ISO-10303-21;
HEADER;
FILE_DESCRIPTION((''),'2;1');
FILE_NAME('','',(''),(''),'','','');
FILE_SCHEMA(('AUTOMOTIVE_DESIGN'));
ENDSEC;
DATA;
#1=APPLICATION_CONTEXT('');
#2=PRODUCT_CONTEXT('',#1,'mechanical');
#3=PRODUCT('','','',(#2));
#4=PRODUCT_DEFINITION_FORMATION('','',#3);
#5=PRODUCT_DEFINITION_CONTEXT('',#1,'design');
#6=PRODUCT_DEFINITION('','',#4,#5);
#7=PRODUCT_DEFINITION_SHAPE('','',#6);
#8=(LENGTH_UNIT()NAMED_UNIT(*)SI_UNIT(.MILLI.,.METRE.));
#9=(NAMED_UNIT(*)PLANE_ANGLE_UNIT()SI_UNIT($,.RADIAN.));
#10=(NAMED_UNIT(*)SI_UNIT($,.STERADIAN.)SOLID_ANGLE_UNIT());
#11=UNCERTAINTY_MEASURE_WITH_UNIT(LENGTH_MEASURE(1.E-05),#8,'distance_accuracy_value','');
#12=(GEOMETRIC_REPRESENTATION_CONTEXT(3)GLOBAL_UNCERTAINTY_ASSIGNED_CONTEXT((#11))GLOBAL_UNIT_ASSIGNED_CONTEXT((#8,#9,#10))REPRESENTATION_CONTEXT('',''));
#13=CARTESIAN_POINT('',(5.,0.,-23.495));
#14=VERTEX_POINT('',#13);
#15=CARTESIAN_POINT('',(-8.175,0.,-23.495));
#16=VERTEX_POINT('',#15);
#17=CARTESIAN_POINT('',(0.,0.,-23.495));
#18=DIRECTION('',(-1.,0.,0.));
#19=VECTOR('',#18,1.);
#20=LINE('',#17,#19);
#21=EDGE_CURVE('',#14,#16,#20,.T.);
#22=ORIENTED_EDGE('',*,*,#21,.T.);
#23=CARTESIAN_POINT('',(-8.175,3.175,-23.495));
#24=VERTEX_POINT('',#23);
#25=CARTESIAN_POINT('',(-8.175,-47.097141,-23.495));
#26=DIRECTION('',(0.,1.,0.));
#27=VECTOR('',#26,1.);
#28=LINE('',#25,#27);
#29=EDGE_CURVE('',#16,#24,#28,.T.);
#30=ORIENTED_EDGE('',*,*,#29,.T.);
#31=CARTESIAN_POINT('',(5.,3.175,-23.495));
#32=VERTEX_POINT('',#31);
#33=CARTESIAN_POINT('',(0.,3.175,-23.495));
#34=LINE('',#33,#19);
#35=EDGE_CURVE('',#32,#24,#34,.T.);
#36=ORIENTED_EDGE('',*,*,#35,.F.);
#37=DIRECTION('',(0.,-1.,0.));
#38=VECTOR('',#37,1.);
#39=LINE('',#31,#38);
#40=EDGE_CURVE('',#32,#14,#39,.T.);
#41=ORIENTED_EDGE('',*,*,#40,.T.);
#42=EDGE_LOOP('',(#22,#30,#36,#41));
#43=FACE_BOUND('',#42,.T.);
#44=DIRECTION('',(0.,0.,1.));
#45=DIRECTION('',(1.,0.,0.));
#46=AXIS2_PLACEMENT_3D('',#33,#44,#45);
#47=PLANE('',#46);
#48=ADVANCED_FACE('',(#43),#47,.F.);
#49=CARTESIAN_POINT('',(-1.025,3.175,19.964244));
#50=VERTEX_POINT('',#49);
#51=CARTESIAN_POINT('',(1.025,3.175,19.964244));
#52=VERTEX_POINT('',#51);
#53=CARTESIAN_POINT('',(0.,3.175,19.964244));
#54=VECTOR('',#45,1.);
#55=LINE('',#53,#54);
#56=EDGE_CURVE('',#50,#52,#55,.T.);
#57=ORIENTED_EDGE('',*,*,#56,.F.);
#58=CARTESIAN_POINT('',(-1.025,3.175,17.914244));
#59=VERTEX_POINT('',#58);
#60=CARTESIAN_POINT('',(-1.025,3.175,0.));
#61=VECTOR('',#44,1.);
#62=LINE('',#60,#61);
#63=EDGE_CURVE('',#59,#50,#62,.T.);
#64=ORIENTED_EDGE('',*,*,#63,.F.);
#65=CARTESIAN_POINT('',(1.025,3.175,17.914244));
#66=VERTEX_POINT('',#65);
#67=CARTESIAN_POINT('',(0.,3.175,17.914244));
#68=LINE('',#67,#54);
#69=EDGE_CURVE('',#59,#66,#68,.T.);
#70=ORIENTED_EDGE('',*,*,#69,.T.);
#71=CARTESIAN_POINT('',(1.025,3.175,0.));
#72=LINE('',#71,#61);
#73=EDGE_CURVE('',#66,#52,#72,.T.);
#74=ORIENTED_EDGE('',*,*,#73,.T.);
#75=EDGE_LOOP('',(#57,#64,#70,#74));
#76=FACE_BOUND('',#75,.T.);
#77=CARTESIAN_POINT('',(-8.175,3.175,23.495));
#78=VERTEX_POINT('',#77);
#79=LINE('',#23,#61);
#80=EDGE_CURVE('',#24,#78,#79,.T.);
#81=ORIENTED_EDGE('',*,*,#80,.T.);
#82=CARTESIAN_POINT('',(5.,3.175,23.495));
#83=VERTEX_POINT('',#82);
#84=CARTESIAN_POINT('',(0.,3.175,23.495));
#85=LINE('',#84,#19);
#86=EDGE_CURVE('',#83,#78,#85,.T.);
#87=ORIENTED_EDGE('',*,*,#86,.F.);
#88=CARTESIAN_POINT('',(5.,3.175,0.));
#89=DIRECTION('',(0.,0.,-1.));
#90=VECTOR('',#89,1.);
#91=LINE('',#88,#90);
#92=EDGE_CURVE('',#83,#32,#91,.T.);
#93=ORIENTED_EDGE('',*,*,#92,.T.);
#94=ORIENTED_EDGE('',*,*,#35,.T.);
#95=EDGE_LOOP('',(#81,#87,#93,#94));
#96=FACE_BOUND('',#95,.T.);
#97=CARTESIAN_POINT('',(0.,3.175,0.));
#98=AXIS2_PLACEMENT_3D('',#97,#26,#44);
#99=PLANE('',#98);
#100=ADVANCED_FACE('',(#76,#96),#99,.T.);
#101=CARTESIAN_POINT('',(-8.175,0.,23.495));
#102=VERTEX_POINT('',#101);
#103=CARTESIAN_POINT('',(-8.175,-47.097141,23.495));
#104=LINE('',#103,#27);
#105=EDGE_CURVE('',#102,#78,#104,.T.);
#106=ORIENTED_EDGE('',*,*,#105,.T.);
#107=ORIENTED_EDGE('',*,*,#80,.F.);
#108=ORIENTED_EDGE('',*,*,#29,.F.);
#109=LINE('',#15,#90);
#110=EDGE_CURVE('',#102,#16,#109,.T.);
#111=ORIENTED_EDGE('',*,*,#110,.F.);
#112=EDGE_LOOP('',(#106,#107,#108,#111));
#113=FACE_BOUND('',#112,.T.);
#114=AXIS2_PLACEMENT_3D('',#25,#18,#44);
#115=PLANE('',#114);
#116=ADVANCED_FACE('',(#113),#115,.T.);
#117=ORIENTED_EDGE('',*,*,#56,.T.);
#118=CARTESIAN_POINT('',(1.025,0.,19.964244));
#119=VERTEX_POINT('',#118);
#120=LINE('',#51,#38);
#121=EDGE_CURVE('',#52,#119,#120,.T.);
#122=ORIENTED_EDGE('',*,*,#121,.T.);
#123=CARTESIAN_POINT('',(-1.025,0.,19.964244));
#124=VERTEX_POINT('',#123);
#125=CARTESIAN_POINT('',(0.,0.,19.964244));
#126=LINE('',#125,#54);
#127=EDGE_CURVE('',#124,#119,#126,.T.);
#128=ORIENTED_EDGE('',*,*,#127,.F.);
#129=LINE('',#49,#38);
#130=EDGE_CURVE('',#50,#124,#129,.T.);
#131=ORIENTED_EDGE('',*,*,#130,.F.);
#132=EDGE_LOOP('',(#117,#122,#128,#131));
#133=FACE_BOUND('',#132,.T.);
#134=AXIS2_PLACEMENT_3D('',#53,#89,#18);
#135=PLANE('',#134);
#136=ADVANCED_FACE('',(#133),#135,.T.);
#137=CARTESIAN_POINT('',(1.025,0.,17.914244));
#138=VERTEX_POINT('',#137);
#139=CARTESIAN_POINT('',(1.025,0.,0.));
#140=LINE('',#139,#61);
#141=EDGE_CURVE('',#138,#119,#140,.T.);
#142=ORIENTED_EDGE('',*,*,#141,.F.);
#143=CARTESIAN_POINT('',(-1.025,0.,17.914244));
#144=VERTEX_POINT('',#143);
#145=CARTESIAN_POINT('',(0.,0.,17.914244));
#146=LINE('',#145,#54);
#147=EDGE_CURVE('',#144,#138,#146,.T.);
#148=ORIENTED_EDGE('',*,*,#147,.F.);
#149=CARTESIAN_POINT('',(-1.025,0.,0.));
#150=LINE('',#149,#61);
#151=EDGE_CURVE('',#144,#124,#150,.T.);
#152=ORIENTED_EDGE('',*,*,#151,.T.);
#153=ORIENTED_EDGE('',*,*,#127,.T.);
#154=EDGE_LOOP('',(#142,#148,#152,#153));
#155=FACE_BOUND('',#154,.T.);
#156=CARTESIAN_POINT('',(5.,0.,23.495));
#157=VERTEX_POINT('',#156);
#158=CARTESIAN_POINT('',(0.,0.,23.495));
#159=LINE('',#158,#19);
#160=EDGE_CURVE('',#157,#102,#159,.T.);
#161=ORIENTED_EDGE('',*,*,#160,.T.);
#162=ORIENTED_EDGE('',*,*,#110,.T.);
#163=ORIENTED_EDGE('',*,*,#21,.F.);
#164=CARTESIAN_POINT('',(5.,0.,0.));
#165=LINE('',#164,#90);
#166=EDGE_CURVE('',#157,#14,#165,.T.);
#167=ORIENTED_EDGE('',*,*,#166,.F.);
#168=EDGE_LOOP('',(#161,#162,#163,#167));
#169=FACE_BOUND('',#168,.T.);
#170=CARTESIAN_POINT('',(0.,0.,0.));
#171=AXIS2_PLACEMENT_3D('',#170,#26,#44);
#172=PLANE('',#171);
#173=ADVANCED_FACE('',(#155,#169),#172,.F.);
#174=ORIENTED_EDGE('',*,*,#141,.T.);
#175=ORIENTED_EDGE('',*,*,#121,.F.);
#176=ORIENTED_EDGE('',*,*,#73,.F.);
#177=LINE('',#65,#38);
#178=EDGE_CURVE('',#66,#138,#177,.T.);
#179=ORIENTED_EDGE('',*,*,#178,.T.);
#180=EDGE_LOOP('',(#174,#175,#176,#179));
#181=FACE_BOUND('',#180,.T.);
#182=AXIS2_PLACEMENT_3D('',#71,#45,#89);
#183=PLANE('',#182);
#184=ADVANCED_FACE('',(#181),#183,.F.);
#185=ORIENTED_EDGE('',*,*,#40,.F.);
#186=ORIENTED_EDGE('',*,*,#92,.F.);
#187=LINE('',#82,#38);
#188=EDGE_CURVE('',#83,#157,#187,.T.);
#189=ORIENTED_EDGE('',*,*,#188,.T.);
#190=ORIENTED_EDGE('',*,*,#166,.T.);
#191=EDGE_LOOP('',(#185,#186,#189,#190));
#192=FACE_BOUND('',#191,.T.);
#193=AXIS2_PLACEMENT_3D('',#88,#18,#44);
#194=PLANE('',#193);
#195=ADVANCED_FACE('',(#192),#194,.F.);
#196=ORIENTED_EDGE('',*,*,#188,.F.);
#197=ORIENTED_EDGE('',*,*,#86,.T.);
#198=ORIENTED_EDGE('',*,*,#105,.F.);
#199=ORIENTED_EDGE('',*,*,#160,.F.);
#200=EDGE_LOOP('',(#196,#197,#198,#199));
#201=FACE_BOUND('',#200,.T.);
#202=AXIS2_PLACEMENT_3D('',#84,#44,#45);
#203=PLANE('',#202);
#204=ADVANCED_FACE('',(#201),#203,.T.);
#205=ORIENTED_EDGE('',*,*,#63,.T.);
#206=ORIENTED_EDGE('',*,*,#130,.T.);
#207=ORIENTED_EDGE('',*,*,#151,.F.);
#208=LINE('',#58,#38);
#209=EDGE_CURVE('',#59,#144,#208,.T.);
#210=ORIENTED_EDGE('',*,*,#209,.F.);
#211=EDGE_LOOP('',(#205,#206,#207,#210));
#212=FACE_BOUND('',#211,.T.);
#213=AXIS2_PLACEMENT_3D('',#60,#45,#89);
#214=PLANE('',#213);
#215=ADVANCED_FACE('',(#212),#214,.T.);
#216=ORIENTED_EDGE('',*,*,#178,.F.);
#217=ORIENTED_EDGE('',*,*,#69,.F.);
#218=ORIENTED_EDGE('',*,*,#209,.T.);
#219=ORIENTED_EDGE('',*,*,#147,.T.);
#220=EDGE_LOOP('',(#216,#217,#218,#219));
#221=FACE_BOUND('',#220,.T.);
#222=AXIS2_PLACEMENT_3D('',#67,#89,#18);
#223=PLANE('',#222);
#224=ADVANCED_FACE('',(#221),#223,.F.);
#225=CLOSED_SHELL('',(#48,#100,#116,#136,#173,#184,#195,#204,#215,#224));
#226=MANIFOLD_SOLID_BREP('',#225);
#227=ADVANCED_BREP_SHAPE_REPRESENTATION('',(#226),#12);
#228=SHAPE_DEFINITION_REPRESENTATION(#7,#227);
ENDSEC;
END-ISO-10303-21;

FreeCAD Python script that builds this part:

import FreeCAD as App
import Part
import Sketcher
Q = App.Units.Quantity


def add_polygon(sketch, points):
    """Adds a closed chain of lines whose ends are joined by coincident constraints."""
    first, n = sketch.GeometryCount, len(points)
    for a, b in zip(points, points[1:] + points[:1]):
        sketch.addGeometry(Part.LineSegment(App.Vector(*a, 0), App.Vector(*b, 0)), False)
    for i in range(n):
        sketch.addConstraint(Sketcher.Constraint("Coincident", first + i, 2, first + (i + 1) % n, 1))

doc = App.newDocument("Part")
body = doc.addObject("PartDesign::Body", "Body")

sketch1 = body.newObject("Sketcher::SketchObject", "Sketch")
sketch1.AttachmentSupport = (doc.getObject("XZ_Plane"), [""])
sketch1.MapMode = "FlatFace"
add_polygon(sketch1, [(-5, -23.5), (-5, 23.5), (5, 23.5), (5, -23.5)])
add_polygon(sketch1, [(1, 20), (-1, 20), (-1, 17.9), (1, 17.9)])
sketch1.addConstraint([
    Sketcher.Constraint("Vertical", 0),
    Sketcher.Constraint("Horizontal", 1),
    Sketcher.Constraint("Vertical", 2),
    Sketcher.Constraint("Horizontal", 3),
    Sketcher.Constraint("Horizontal", 4),
    Sketcher.Constraint("Vertical", 5),
    Sketcher.Constraint("Horizontal", 6),
    Sketcher.Constraint("Vertical", 7),
    Sketcher.Constraint("Symmetric", 0, 2, 2, 2, -1, 1),
    Sketcher.Constraint("Equal", 6, 5),
    Sketcher.Constraint("DistanceY", 0, 1, 0, 2, Q("1.85 in")),
    Sketcher.Constraint("DistanceX", 1, 1, 1, 2, Q("10 mm")),
    Sketcher.Constraint("DistanceX", 4, 2, 4, 1, Q("2.05 mm")),
    Sketcher.Constraint("DistanceX", 4, 2, -1, 1, Q("1.025 mm")),
    Sketcher.Constraint("DistanceY", -1, 1, 4, 2, Q("19.964244 mm")),
])
pad1 = body.newObject("PartDesign::Pad", "Pad")
pad1.Profile = sketch1
pad1.Length = Q("0.125 in")
pad1.Reversed = True

sketch2 = body.newObject("Sketcher::SketchObject", "Sketch001")
sketch2.AttachmentSupport = (doc.getObject("XZ_Plane"), [""])
sketch2.MapMode = "FlatFace"
sketch2.AttachmentOffset = App.Placement(App.Vector(0, 0, -0.125 * 25.4), App.Rotation())
add_polygon(sketch2, [(-8.2, -23.5), (-8.2, 23.5), (-5, 23.5), (-5, -23.5)])
sketch2.addConstraint([
    Sketcher.Constraint("Vertical", 0),
    Sketcher.Constraint("Horizontal", 1),
    Sketcher.Constraint("Vertical", 2),
    Sketcher.Constraint("Horizontal", 3),
    Sketcher.Constraint("DistanceY", 0, 1, 0, 2, Q("1.85 in")),
    Sketcher.Constraint("DistanceX", 1, 1, 1, 2, Q("0.125 in")),
    Sketcher.Constraint("DistanceY", -1, 1, 0, 2, Q("0.925 in")),
    Sketcher.Constraint("DistanceX", 0, 2, -1, 1, Q("8.175 mm")),
])
pad2 = body.newObject("PartDesign::Pad", "Pad001")
pad2.Profile = sketch2
pad2.Length = Q("0.125 in")

doc.recompute()
